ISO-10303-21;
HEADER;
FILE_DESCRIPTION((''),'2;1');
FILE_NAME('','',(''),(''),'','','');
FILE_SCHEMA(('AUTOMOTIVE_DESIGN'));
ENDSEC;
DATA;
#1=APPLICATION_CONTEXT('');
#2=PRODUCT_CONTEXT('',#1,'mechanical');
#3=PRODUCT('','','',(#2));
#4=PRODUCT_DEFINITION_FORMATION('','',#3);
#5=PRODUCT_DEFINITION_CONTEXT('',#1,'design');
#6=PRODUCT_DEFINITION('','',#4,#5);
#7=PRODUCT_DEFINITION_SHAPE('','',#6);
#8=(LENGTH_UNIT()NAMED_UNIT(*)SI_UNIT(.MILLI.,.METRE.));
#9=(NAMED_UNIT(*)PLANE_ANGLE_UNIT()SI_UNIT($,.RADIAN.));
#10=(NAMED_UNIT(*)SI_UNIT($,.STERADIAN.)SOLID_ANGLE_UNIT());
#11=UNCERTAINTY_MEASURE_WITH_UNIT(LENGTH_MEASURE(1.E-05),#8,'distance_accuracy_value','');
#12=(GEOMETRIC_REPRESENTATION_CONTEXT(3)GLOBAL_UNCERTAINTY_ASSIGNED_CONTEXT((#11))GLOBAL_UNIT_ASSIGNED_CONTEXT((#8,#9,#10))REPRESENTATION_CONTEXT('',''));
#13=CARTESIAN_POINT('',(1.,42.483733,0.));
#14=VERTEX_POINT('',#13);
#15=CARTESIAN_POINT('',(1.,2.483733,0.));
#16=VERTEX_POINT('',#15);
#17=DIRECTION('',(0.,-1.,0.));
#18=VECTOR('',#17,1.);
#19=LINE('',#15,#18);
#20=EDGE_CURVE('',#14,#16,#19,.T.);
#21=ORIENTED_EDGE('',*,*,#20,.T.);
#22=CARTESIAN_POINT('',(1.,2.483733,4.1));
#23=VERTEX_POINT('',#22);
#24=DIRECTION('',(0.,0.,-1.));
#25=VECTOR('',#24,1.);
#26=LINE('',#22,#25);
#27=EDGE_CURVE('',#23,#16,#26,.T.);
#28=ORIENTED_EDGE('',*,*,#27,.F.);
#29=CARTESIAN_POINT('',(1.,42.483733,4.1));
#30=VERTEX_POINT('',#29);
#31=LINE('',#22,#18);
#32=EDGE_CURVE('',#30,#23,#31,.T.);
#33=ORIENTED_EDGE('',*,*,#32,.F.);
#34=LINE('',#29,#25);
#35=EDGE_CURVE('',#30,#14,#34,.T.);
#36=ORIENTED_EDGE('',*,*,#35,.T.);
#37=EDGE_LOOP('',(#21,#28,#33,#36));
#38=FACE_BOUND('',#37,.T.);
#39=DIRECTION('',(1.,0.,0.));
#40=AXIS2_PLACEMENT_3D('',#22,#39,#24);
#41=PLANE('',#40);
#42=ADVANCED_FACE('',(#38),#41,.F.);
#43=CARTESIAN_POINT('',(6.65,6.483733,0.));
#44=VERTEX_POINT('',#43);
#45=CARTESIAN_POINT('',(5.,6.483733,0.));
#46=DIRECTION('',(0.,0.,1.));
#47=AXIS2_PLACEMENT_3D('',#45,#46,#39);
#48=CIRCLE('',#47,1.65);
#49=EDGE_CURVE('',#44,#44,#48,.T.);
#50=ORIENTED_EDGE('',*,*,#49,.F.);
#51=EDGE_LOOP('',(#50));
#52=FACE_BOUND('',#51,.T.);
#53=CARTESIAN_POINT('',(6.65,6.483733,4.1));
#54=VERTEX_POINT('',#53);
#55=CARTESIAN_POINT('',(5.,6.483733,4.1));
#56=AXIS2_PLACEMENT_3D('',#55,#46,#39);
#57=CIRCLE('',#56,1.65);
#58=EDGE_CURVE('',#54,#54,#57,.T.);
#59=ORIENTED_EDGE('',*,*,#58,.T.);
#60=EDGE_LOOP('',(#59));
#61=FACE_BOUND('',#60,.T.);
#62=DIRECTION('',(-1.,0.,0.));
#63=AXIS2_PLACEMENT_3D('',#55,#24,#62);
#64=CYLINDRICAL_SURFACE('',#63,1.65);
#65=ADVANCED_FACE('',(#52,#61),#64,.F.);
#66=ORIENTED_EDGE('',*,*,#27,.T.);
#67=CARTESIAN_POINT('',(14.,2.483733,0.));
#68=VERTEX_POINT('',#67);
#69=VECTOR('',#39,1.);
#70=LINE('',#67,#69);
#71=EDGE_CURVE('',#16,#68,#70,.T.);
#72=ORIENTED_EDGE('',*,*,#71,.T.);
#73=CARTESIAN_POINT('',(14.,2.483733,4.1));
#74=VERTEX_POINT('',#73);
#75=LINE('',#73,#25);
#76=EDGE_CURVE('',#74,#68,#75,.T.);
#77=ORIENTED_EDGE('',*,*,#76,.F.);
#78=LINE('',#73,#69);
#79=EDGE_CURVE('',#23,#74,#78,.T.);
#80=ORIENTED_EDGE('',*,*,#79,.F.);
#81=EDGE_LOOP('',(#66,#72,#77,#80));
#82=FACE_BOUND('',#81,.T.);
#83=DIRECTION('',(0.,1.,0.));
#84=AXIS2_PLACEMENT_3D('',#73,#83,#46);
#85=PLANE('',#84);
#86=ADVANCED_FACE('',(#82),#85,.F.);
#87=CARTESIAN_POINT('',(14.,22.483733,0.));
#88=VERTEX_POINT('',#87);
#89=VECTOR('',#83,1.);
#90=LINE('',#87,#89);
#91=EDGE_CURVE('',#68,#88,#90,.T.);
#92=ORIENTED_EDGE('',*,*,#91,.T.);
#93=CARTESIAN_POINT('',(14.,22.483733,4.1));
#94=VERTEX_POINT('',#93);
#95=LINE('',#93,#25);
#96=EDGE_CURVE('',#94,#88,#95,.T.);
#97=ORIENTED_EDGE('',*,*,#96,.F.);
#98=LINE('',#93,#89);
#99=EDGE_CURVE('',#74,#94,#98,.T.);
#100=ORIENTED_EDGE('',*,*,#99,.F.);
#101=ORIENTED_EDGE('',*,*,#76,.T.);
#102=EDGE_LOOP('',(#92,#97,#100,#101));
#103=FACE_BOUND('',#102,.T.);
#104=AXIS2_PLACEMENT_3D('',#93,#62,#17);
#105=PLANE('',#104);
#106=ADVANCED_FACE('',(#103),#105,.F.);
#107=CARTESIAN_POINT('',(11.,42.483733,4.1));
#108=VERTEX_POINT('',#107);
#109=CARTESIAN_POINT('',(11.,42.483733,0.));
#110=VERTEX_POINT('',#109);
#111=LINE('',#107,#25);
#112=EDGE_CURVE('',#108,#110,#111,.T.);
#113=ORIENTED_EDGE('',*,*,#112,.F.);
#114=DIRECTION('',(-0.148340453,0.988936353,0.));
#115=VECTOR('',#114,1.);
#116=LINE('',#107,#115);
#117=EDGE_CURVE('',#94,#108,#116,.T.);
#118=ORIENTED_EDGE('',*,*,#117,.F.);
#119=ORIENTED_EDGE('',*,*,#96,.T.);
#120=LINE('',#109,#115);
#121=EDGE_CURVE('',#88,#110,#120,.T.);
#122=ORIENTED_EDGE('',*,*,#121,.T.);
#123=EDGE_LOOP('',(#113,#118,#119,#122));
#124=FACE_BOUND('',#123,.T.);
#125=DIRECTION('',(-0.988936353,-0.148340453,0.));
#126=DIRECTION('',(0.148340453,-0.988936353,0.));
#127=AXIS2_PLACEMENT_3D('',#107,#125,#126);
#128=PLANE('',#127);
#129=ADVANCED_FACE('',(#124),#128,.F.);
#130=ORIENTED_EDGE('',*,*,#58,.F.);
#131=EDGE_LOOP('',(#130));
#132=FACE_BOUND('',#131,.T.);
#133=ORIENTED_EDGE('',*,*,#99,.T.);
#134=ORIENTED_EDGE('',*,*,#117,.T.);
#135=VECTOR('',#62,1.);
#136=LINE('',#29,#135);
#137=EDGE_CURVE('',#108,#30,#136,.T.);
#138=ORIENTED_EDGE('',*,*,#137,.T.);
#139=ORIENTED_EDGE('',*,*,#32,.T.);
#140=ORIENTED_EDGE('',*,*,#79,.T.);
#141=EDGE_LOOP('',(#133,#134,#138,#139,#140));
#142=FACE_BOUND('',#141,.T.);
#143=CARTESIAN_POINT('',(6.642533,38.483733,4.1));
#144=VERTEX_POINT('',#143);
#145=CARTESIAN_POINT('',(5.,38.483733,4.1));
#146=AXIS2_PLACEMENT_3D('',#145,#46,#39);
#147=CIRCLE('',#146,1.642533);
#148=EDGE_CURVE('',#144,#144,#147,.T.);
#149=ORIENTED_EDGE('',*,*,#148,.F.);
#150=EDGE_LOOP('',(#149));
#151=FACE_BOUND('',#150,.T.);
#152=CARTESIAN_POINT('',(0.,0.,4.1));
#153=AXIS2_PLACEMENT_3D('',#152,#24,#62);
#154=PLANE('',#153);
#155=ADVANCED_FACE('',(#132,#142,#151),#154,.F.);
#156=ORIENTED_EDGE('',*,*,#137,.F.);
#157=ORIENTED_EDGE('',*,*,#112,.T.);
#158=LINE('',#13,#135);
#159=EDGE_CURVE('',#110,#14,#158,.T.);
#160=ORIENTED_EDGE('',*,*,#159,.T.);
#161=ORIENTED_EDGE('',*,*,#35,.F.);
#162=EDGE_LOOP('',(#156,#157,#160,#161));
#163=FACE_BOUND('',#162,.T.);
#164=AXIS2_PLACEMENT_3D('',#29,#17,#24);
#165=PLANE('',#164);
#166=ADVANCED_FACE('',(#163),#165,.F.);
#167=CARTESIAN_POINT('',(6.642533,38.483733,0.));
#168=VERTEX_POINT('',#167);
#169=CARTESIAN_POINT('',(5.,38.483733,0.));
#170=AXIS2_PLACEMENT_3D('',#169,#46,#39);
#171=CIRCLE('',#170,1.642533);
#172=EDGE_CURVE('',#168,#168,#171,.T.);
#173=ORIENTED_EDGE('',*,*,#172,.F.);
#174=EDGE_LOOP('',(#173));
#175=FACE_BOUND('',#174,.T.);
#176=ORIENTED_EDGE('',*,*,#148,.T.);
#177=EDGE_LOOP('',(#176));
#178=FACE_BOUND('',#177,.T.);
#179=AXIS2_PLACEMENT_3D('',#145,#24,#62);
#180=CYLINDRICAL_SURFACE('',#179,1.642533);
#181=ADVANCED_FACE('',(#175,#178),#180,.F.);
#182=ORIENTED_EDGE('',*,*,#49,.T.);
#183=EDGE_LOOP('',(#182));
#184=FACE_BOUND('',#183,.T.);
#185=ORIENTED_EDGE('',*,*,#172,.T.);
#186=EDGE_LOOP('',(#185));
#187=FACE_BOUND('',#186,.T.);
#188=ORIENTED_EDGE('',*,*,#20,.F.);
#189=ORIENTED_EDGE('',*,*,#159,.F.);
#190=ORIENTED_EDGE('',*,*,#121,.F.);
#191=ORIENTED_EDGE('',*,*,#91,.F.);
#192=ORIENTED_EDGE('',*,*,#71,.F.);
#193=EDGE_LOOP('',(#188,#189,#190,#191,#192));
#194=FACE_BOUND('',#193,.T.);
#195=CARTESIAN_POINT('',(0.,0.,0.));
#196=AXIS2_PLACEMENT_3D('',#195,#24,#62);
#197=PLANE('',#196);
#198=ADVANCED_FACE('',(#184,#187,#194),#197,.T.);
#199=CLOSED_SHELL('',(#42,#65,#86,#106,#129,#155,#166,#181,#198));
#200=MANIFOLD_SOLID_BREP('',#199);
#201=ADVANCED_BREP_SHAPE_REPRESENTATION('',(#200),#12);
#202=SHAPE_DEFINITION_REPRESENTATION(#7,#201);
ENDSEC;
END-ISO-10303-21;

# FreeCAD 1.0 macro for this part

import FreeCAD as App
import Part
import Sketcher

V = App.Vector

doc = App.newDocument("Part")
body = doc.addObject("PartDesign::Body", "Body")

# Sketch on XY plane
sketch1 = body.newObject("Sketcher::SketchObject", "Sketch")
sketch1.AttachmentSupport = (doc.getObject("XY_Plane"), [""])
sketch1.MapMode = "FlatFace"
sketch1.addGeometry(Part.LineSegment(V(1, 42.483733, 0), V(1, 2.483733, 0)), False)
sketch1.addGeometry(Part.LineSegment(V(1, 2.483733, 0), V(14, 2.483733, 0)), False)
sketch1.addGeometry(Part.LineSegment(V(14, 2.483733, 0), V(14, 22.483733, 0)), False)
sketch1.addGeometry(Part.LineSegment(V(14, 22.483733, 0), V(11, 42.483733, 0)), False)
sketch1.addGeometry(Part.LineSegment(V(11, 42.483733, 0), V(1, 42.483733, 0)), False)
sketch1.addGeometry(Part.Circle(V(5, 6.483733, 0), V(0, 0, 1), 1.65), False)
sketch1.addGeometry(Part.Circle(V(5, 38.483733, 0), V(0, 0, 1), 1.642533), False)
sketch1.addConstraint(Sketcher.Constraint("Coincident", 0, 2, 1, 1))
sketch1.addConstraint(Sketcher.Constraint("Coincident", 1, 2, 2, 1))
sketch1.addConstraint(Sketcher.Constraint("Coincident", 2, 2, 3, 1))
sketch1.addConstraint(Sketcher.Constraint("Coincident", 3, 2, 4, 1))
sketch1.addConstraint(Sketcher.Constraint("Coincident", 4, 2, 0, 1))
sketch1.addConstraint(Sketcher.Constraint("Vertical", 0))
sketch1.addConstraint(Sketcher.Constraint("Horizontal", 1))
sketch1.addConstraint(Sketcher.Constraint("Vertical", 2))
sketch1.addConstraint(Sketcher.Constraint("Horizontal", 4))
sketch1.addConstraint(Sketcher.Constraint("Vertical", 5, 3, 6, 3))
sketch1.addConstraint(Sketcher.Constraint("Diameter", 5, 3.3))
sketch1.addConstraint(Sketcher.Constraint("DistanceX", 1, 1, 1, 2, 13.0))
sketch1.addConstraint(Sketcher.Constraint("DistanceX", 4, 2, 4, 1, 10.0))
sketch1.addConstraint(Sketcher.Constraint("DistanceY", 0, 2, 0, 1, 40.0))
sketch1.addConstraint(Sketcher.Constraint("DistanceY", 2, 1, 2, 2, 20.0))
sketch1.addConstraint(Sketcher.Constraint("DistanceX", -1, 1, 5, 3, 5.0))
sketch1.addConstraint(Sketcher.Constraint("DistanceX", -1, 1, 0, 2, 1.0))
sketch1.addConstraint(Sketcher.Constraint("DistanceY", 5, 3, 6, 3, 32.0))
sketch1.addConstraint(Sketcher.Constraint("DistanceY", 0, 2, 5, 3, 4.0))
sketch1.addConstraint(Sketcher.Constraint("Diameter", 6, 3.285066))
sketch1.addConstraint(Sketcher.Constraint("DistanceY", -1, 1, 5, 3, 6.483733))
pad1 = body.newObject("PartDesign::Pad", "Pad")
pad1.Profile = sketch1
pad1.Length = 4.1

doc.recompute()
